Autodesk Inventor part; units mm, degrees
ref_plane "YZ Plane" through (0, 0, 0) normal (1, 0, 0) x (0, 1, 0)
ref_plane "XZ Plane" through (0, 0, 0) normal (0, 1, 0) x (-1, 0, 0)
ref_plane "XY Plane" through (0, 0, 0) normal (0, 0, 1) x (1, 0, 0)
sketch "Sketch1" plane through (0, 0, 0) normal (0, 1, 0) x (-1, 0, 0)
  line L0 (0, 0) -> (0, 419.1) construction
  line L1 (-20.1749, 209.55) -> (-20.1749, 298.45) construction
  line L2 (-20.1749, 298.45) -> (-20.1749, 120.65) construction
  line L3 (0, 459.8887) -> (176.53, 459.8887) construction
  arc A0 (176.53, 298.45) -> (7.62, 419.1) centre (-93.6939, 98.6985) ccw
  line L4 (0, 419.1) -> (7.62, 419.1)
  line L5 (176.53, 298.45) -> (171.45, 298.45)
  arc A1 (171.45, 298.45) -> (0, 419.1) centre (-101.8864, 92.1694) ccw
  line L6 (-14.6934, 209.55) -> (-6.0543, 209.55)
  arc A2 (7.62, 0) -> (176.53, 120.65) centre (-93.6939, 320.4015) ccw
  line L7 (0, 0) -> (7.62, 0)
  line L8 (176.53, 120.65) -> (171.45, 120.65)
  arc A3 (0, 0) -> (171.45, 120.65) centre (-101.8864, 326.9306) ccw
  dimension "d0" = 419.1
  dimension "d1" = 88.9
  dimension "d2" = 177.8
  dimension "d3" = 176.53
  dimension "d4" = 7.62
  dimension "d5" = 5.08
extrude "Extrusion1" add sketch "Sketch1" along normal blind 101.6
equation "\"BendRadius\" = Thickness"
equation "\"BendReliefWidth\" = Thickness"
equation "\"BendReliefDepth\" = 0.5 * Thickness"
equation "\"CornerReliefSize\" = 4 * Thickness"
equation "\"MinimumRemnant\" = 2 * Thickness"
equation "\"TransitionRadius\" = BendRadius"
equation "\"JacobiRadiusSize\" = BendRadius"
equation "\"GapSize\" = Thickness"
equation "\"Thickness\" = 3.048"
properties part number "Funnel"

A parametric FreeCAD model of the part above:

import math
import FreeCAD as App
import Part
import Sketcher
Q = App.Units.Quantity

doc = App.newDocument("Part")
body = doc.addObject("PartDesign::Body", "Body")
body.AllowCompound = True

# Sketch on XZ plane
sketch1 = doc.addObject("Sketcher::SketchObject", "Sketch")
body.addObject(sketch1)
sketch1.AttachmentSupport = (doc.XZ_Plane, [""])
sketch1.MapMode = "FlatFace"
sketch1.addGeometry(Part.LineSegment(App.Vector(-171, 298, 0), App.Vector(-177, 298, 0)), False)
sketch1.addGeometry(Part.ArcOfCircle(Part.Circle(App.Vector(94, 99, 0), App.Vector(0, 0, 1), 336), math.radians(108), math.radians(144)), False)
sketch1.addGeometry(Part.LineSegment(App.Vector(-8, 419, 0), App.Vector(0, 419, 0)), False)
sketch1.addGeometry(Part.ArcOfCircle(Part.Circle(App.Vector(102, 92, 0), App.Vector(0, 0, 1), 342), math.radians(107), math.radians(143)), False)
sketch1.addGeometry(Part.LineSegment(App.Vector(0, 0, 0), App.Vector(-8, 0, 0)), False)
sketch1.addGeometry(Part.ArcOfCircle(Part.Circle(App.Vector(94, 320, 0), App.Vector(0, 0, 1), 336), math.radians(-144), math.radians(-108)), False)
sketch1.addGeometry(Part.LineSegment(App.Vector(-177, 121, 0), App.Vector(-171, 121, 0)), False)
sketch1.addGeometry(Part.ArcOfCircle(Part.Circle(App.Vector(102, 327, 0), App.Vector(0, 0, 1), 342), math.radians(-143), math.radians(-107)), False)
sketch1.addConstraint(Sketcher.Constraint("Coincident", 0, 2, 1, 2))
sketch1.addConstraint(Sketcher.Constraint("Coincident", 1, 1, 2, 1))
sketch1.addConstraint(Sketcher.Constraint("Coincident", 2, 2, 3, 1))
sketch1.addConstraint(Sketcher.Constraint("Coincident", 3, 2, 0, 1))
sketch1.addConstraint(Sketcher.Constraint("Coincident", 4, 2, 5, 2))
sketch1.addConstraint(Sketcher.Constraint("Coincident", 5, 1, 6, 1))
sketch1.addConstraint(Sketcher.Constraint("Coincident", 6, 2, 7, 1))
sketch1.addConstraint(Sketcher.Constraint("Coincident", 7, 2, 4, 1))
sketch1.addConstraint(Sketcher.Constraint("Horizontal", 0))
sketch1.addConstraint(Sketcher.Constraint("Horizontal", 2))
sketch1.addConstraint(Sketcher.Constraint("Horizontal", 4))
sketch1.addConstraint(Sketcher.Constraint("Horizontal", 6))
sketch1.addConstraint(Sketcher.Constraint("Coincident", 7, 2, -1, 1))
sketch1.addConstraint(Sketcher.Constraint("Equal", 1, 5))
sketch1.addConstraint(Sketcher.Constraint("Equal", 3, 7))
sketch1.addConstraint(Sketcher.Constraint("PointOnObject", 2, 2, -2))
sketch1.addConstraint(Sketcher.Constraint("Vertical", 1, 3, 5, 3))
sketch1.addConstraint(Sketcher.Constraint("Vertical", 3, 3, 7, 3))
sketch1.addConstraint(Sketcher.Constraint("Vertical", 1, 1, 4, 2))
sketch1.addConstraint(Sketcher.Constraint("Vertical", 0, 2, 5, 1))
sketch1.addConstraint(Sketcher.Constraint("DistanceX", 0, 2, 0, 1, Q("0.2 in")))
sketch1.addConstraint(Sketcher.Constraint("DistanceX", 2, 1, 2, 2, Q("0.3 in")))
sketch1.addConstraint(Sketcher.Constraint("DistanceY", 5, 1, 0, 2, Q("7 in")))
sketch1.addConstraint(Sketcher.Constraint("DistanceY", -1, 1, 1, 1, Q("16.5 in")))
sketch1.addConstraint(Sketcher.Constraint("DistanceX", 0, 2, -1, 1, Q("6.95 in")))
sketch1.addConstraint(Sketcher.Constraint("Radius", 1, Q("336.038 mm")))
sketch1.addConstraint(Sketcher.Constraint("Radius", 3, Q("342.439 mm")))
pad1 = doc.addObject("PartDesign::Pad", "Pad")
body.addObject(pad1)
pad1.Profile = sketch1
pad1.Length = Q("4 in")
pad1.Reversed = True

doc.recompute()
